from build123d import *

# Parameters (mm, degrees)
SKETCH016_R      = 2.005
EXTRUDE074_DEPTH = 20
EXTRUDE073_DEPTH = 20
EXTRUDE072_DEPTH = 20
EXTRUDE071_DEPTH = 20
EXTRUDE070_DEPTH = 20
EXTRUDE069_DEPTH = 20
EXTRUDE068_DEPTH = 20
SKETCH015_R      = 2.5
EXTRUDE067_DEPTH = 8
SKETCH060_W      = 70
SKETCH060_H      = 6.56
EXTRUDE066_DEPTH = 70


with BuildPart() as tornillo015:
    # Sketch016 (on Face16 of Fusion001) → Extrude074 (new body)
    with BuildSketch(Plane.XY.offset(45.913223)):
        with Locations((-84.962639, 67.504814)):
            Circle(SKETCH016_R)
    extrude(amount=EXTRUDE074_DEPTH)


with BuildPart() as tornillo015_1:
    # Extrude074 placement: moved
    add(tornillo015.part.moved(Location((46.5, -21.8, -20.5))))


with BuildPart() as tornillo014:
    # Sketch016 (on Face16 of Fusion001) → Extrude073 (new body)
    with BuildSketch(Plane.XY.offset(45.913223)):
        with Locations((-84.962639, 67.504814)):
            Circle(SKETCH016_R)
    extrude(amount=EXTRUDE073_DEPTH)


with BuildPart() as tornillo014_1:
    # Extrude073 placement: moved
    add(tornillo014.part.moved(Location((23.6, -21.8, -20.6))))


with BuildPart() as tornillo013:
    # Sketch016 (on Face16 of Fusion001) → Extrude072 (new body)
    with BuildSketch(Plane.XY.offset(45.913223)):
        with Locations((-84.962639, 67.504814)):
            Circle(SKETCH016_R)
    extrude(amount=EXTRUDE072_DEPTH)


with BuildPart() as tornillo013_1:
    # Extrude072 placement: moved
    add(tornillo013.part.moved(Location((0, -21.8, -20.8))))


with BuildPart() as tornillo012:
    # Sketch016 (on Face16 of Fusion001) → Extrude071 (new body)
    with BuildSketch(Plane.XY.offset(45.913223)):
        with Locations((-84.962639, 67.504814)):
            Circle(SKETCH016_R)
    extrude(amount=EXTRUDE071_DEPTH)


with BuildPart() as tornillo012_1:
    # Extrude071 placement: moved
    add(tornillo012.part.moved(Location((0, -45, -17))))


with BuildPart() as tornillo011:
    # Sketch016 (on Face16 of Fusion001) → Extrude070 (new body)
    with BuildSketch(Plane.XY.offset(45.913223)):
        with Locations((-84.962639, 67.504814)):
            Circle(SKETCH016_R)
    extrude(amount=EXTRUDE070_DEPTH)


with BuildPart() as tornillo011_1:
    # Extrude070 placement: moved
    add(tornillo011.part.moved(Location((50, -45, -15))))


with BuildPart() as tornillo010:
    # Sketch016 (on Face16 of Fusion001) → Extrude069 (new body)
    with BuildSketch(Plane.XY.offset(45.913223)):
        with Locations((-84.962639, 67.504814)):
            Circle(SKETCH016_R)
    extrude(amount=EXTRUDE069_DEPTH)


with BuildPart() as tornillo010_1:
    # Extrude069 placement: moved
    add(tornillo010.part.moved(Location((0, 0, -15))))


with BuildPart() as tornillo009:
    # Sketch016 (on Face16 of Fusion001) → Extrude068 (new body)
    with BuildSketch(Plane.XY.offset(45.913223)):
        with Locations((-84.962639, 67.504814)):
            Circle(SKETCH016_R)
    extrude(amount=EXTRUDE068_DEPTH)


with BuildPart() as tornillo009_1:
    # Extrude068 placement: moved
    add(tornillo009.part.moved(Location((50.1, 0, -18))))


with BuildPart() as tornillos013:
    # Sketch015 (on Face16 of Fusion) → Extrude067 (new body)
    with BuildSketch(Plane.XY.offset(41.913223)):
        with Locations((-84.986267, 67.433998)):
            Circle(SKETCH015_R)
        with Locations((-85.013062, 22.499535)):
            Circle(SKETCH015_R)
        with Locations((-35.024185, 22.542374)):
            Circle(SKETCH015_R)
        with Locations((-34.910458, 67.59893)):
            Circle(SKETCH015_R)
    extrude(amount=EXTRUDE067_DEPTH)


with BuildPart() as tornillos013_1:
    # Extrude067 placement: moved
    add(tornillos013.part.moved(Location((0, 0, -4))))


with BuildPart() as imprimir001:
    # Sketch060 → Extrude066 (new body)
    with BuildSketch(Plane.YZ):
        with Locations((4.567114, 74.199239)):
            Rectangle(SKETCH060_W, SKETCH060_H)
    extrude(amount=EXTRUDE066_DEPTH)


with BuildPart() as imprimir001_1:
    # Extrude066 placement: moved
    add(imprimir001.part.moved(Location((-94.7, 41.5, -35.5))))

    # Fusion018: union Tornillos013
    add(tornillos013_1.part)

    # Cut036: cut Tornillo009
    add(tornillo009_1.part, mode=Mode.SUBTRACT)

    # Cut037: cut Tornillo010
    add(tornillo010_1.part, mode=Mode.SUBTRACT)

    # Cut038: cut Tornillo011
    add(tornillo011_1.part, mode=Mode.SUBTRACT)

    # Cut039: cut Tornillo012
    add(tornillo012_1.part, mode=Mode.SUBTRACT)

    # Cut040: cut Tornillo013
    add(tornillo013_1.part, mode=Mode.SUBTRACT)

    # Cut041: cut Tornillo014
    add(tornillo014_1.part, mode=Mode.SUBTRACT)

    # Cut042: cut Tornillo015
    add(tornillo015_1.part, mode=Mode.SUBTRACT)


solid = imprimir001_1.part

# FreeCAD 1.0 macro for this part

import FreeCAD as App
import Part
import Sketcher
from FreeCAD import Vector
Q = App.Units.Quantity

doc = App.newDocument("Part")
params = doc.addObject("Spreadsheet::Sheet", "Params")
for row, (alias, value) in enumerate([
    ("sketch1_diameter", "4.01 mm"),
    ("pad1_length", "20 mm"),
    ("sketch2_diameter", "4.01 mm"),
    ("pad2_length", "20 mm"),
    ("sketch3_diameter", "4.01 mm"),
    ("pad3_length", "20 mm"),
    ("sketch4_diameter", "4.01 mm"),
    ("pad4_length", "20 mm"),
    ("sketch5_diameter", "4.01 mm"),
    ("pad5_length", "20 mm"),
    ("sketch6_diameter", "4.01 mm"),
    ("pad6_length", "20 mm"),
    ("sketch7_diameter", "4.01 mm"),
    ("pad7_length", "20 mm"),
    ("sketch8_diameter", "5 mm"),
    ("pad8_length", "8 mm"),
    ("sketch9_width", "70 mm"),
    ("sketch9_height", "6.56 mm"),
    ("pad9_length", "70 mm"),
], start=1):
    params.set(f"A{row}", alias)
    params.set(f"B{row}", "=" + value)
    params.setAlias(f"B{row}", alias)

body = doc.addObject("PartDesign::Body", "Body")

# Sketch on XY plane
sketch1 = body.newObject("Sketcher::SketchObject", "Sketch")
sketch1.AttachmentSupport = (doc.getObject("XY_Plane"), [""])
sketch1.MapMode = "FlatFace"
sketch1.AttachmentOffset = App.Placement(Vector(0, 0, 45.913223), App.Rotation())
sketch1.addGeometry(Part.Circle(Vector(-85, 67.5, 0), Vector(0, 0, 1), 2), False)
sketch1.addConstraint([
    Sketcher.Constraint("Diameter", 0, Q("4.01 mm")),
    Sketcher.Constraint("DistanceX", 0, 3, -1, 1, Q("84.962639 mm")),
    Sketcher.Constraint("DistanceY", -1, 1, 0, 3, Q("67.504814 mm")),
])
sketch1.setExpression("Constraints[0]", "Params.sketch1_diameter")
pad1 = body.newObject("PartDesign::Pad", "Pad")
pad1.Profile = sketch1
pad1.setExpression("Length", "Params.pad1_length")
body2 = doc.addObject("PartDesign::Body", "Body001")
doc.recompute()

body.Placement = App.Placement(Vector(46.5, -21.8, -20.5), App.Rotation(Vector(0, 0, 1), 0))
boolean = body2.newObject("PartDesign::Boolean", "Boolean")
boolean.Type = "Fuse"
boolean.addObjects([body])
body3 = doc.addObject("PartDesign::Body", "Body002")

# Sketch on XY plane
sketch2 = body3.newObject("Sketcher::SketchObject", "Sketch001")
sketch2.AttachmentSupport = (doc.getObject("XY_Plane002"), [""])
sketch2.MapMode = "FlatFace"
sketch2.AttachmentOffset = App.Placement(Vector(0, 0, 45.913223), App.Rotation())
sketch2.addGeometry(Part.Circle(Vector(-85, 67.5, 0), Vector(0, 0, 1), 2), False)
sketch2.addConstraint([
    Sketcher.Constraint("Diameter", 0, Q("4.01 mm")),
    Sketcher.Constraint("DistanceX", 0, 3, -1, 1, Q("84.962639 mm")),
    Sketcher.Constraint("DistanceY", -1, 1, 0, 3, Q("67.504814 mm")),
])
sketch2.setExpression("Constraints[0]", "Params.sketch2_diameter")
pad2 = body3.newObject("PartDesign::Pad", "Pad001")
pad2.Profile = sketch2
pad2.setExpression("Length", "Params.pad2_length")
body4 = doc.addObject("PartDesign::Body", "Body003")
doc.recompute()

body3.Placement = App.Placement(Vector(23.6, -21.8, -20.6), App.Rotation(Vector(0, 0, 1), 0))
boolean2 = body4.newObject("PartDesign::Boolean", "Boolean001")
boolean2.Type = "Fuse"
boolean2.addObjects([body3])
body5 = doc.addObject("PartDesign::Body", "Body004")

# Sketch on XY plane
sketch3 = body5.newObject("Sketcher::SketchObject", "Sketch002")
sketch3.AttachmentSupport = (doc.getObject("XY_Plane004"), [""])
sketch3.MapMode = "FlatFace"
sketch3.AttachmentOffset = App.Placement(Vector(0, 0, 45.913223), App.Rotation())
sketch3.addGeometry(Part.Circle(Vector(-85, 67.5, 0), Vector(0, 0, 1), 2), False)
sketch3.addConstraint([
    Sketcher.Constraint("Diameter", 0, Q("4.01 mm")),
    Sketcher.Constraint("DistanceX", 0, 3, -1, 1, Q("84.962639 mm")),
    Sketcher.Constraint("DistanceY", -1, 1, 0, 3, Q("67.504814 mm")),
])
sketch3.setExpression("Constraints[0]", "Params.sketch3_diameter")
pad3 = body5.newObject("PartDesign::Pad", "Pad002")
pad3.Profile = sketch3
pad3.setExpression("Length", "Params.pad3_length")
body6 = doc.addObject("PartDesign::Body", "Body005")
doc.recompute()

body5.Placement = App.Placement(Vector(0, -21.8, -20.8), App.Rotation(Vector(0, 0, 1), 0))
boolean3 = body6.newObject("PartDesign::Boolean", "Boolean002")
boolean3.Type = "Fuse"
boolean3.addObjects([body5])
body7 = doc.addObject("PartDesign::Body", "Body006")

# Sketch on XY plane
sketch4 = body7.newObject("Sketcher::SketchObject", "Sketch003")
sketch4.AttachmentSupport = (doc.getObject("XY_Plane006"), [""])
sketch4.MapMode = "FlatFace"
sketch4.AttachmentOffset = App.Placement(Vector(0, 0, 45.913223), App.Rotation())
sketch4.addGeometry(Part.Circle(Vector(-85, 67.5, 0), Vector(0, 0, 1), 2), False)
sketch4.addConstraint([
    Sketcher.Constraint("Diameter", 0, Q("4.01 mm")),
    Sketcher.Constraint("DistanceX", 0, 3, -1, 1, Q("84.962639 mm")),
    Sketcher.Constraint("DistanceY", -1, 1, 0, 3, Q("67.504814 mm")),
])
sketch4.setExpression("Constraints[0]", "Params.sketch4_diameter")
pad4 = body7.newObject("PartDesign::Pad", "Pad003")
pad4.Profile = sketch4
pad4.setExpression("Length", "Params.pad4_length")
body8 = doc.addObject("PartDesign::Body", "Body007")
doc.recompute()

body7.Placement = App.Placement(Vector(0, -45, -17), App.Rotation(Vector(0, 0, 1), 0))
boolean4 = body8.newObject("PartDesign::Boolean", "Boolean003")
boolean4.Type = "Fuse"
boolean4.addObjects([body7])
body9 = doc.addObject("PartDesign::Body", "Body008")

# Sketch on XY plane
sketch5 = body9.newObject("Sketcher::SketchObject", "Sketch004")
sketch5.AttachmentSupport = (doc.getObject("XY_Plane008"), [""])
sketch5.MapMode = "FlatFace"
sketch5.AttachmentOffset = App.Placement(Vector(0, 0, 45.913223), App.Rotation())
sketch5.addGeometry(Part.Circle(Vector(-85, 67.5, 0), Vector(0, 0, 1), 2), False)
sketch5.addConstraint([
    Sketcher.Constraint("Diameter", 0, Q("4.01 mm")),
    Sketcher.Constraint("DistanceX", 0, 3, -1, 1, Q("84.962639 mm")),
    Sketcher.Constraint("DistanceY", -1, 1, 0, 3, Q("67.504814 mm")),
])
sketch5.setExpression("Constraints[0]", "Params.sketch5_diameter")
pad5 = body9.newObject("PartDesign::Pad", "Pad004")
pad5.Profile = sketch5
pad5.setExpression("Length", "Params.pad5_length")
body10 = doc.addObject("PartDesign::Body", "Body009")
doc.recompute()

body9.Placement = App.Placement(Vector(50, -45, -15), App.Rotation(Vector(0, 0, 1), 0))
boolean5 = body10.newObject("PartDesign::Boolean", "Boolean004")
boolean5.Type = "Fuse"
boolean5.addObjects([body9])
body11 = doc.addObject("PartDesign::Body", "Body010")

# Sketch on XY plane
sketch6 = body11.newObject("Sketcher::SketchObject", "Sketch005")
sketch6.AttachmentSupport = (doc.getObject("XY_Plane010"), [""])
sketch6.MapMode = "FlatFace"
sketch6.AttachmentOffset = App.Placement(Vector(0, 0, 45.913223), App.Rotation())
sketch6.addGeometry(Part.Circle(Vector(-85, 67.5, 0), Vector(0, 0, 1), 2), False)
sketch6.addConstraint([
    Sketcher.Constraint("Diameter", 0, Q("4.01 mm")),
    Sketcher.Constraint("DistanceX", 0, 3, -1, 1, Q("84.962639 mm")),
    Sketcher.Constraint("DistanceY", -1, 1, 0, 3, Q("67.504814 mm")),
])
sketch6.setExpression("Constraints[0]", "Params.sketch6_diameter")
pad6 = body11.newObject("PartDesign::Pad", "Pad005")
pad6.Profile = sketch6
pad6.setExpression("Length", "Params.pad6_length")
body12 = doc.addObject("PartDesign::Body", "Body011")
doc.recompute()

body11.Placement = App.Placement(Vector(0, 0, -15), App.Rotation(Vector(0, 0, 1), 0))
boolean6 = body12.newObject("PartDesign::Boolean", "Boolean005")
boolean6.Type = "Fuse"
boolean6.addObjects([body11])
body13 = doc.addObject("PartDesign::Body", "Body012")

# Sketch on XY plane
sketch7 = body13.newObject("Sketcher::SketchObject", "Sketch006")
sketch7.AttachmentSupport = (doc.getObject("XY_Plane012"), [""])
sketch7.MapMode = "FlatFace"
sketch7.AttachmentOffset = App.Placement(Vector(0, 0, 45.913223), App.Rotation())
sketch7.addGeometry(Part.Circle(Vector(-85, 67.5, 0), Vector(0, 0, 1), 2), False)
sketch7.addConstraint([
    Sketcher.Constraint("Diameter", 0, Q("4.01 mm")),
    Sketcher.Constraint("DistanceX", 0, 3, -1, 1, Q("84.962639 mm")),
    Sketcher.Constraint("DistanceY", -1, 1, 0, 3, Q("67.504814 mm")),
])
sketch7.setExpression("Constraints[0]", "Params.sketch7_diameter")
pad7 = body13.newObject("PartDesign::Pad", "Pad006")
pad7.Profile = sketch7
pad7.setExpression("Length", "Params.pad7_length")
body14 = doc.addObject("PartDesign::Body", "Body013")
doc.recompute()

body13.Placement = App.Placement(Vector(50.1, 0, -18), App.Rotation(Vector(0, 0, 1), 0))
boolean7 = body14.newObject("PartDesign::Boolean", "Boolean006")
boolean7.Type = "Fuse"
boolean7.addObjects([body13])
body15 = doc.addObject("PartDesign::Body", "Body014")
body15.AllowCompound = True

# Sketch on XY plane
sketch8 = body15.newObject("Sketcher::SketchObject", "Sketch007")
sketch8.AttachmentSupport = (doc.getObject("XY_Plane014"), [""])
sketch8.MapMode = "FlatFace"
sketch8.AttachmentOffset = App.Placement(Vector(0, 0, 41.913223), App.Rotation())
sketch8.addGeometry([
    Part.Circle(Vector(-85, 67.4, 0), Vector(0, 0, 1), 2.5),
    Part.Circle(Vector(-85, 22.5, 0), Vector(0, 0, 1), 2.5),
    Part.Circle(Vector(-35, 22.5, 0), Vector(0, 0, 1), 2.5),
    Part.Circle(Vector(-34.9, 67.6, 0), Vector(0, 0, 1), 2.5),
], False)
sketch8.addConstraint([
    Sketcher.Constraint("Equal", 0, 1),
    Sketcher.Constraint("Equal", 1, 2),
    Sketcher.Constraint("Equal", 2, 3),
    Sketcher.Constraint("Diameter", 0, Q("5 mm")),
    Sketcher.Constraint("DistanceY", -1, 1, 0, 3, Q("67.433998 mm")),
    Sketcher.Constraint("DistanceY", -1, 1, 3, 3, Q("67.59893 mm")),
    Sketcher.Constraint("DistanceY", 1, 3, 2, 3, Q("0.042839 mm")),
    Sketcher.Constraint("DistanceX", 0, 3, 2, 3, Q("49.962082 mm")),
    Sketcher.Constraint("DistanceX", 0, 3, 3, 3, Q("50.075809 mm")),
    Sketcher.Constraint("DistanceX", 0, 3, -1, 1, Q("84.986267 mm")),
    Sketcher.Constraint("DistanceX", 1, 3, -1, 1, Q("85.013062 mm")),
    Sketcher.Constraint("DistanceY", -1, 1, 1, 3, Q("22.499535 mm")),
])
sketch8.setExpression("Constraints[3]", "Params.sketch8_diameter")
pad8 = body15.newObject("PartDesign::Pad", "Pad007")
pad8.Profile = sketch8
pad8.setExpression("Length", "Params.pad8_length")
body16 = doc.addObject("PartDesign::Body", "Body015")
body16.AllowCompound = True
doc.recompute()

body15.Placement = App.Placement(Vector(0, 0, -4), App.Rotation(Vector(0, 0, 1), 0))
boolean8 = body16.newObject("PartDesign::Boolean", "Boolean007")
boolean8.Type = "Fuse"
boolean8.addObjects([body15])
body17 = doc.addObject("PartDesign::Body", "Body016")

# Sketch on YZ plane
sketch9 = body17.newObject("Sketcher::SketchObject", "Sketch008")
sketch9.AttachmentSupport = (doc.getObject("YZ_Plane016"), [""])
sketch9.MapMode = "FlatFace"
sketch9.addGeometry([
    Part.LineSegment(Vector(-30, 77, 0), Vector(-30, 71, 0)),
    Part.LineSegment(Vector(-30, 71, 0), Vector(40, 71, 0)),
    Part.LineSegment(Vector(40, 71, 0), Vector(40, 77, 0)),
    Part.LineSegment(Vector(40, 77, 0), Vector(-30, 77, 0)),
], False)
sketch9.addConstraint([
    Sketcher.Constraint("Coincident", 0, 2, 1, 1),
    Sketcher.Constraint("Coincident", 1, 2, 2, 1),
    Sketcher.Constraint("Coincident", 2, 2, 3, 1),
    Sketcher.Constraint("Coincident", 3, 2, 0, 1),
    Sketcher.Constraint("Vertical", 0),
    Sketcher.Constraint("Horizontal", 1),
    Sketcher.Constraint("Vertical", 2),
    Sketcher.Constraint("Horizontal", 3),
    Sketcher.Constraint("DistanceX", 1, 1, 1, 2, Q("70 mm")),
    Sketcher.Constraint("DistanceY", 0, 2, 0, 1, Q("6.56 mm")),
    Sketcher.Constraint("DistanceY", -1, 1, 0, 2, Q("70.919239 mm")),
    Sketcher.Constraint("DistanceX", 0, 2, -1, 1, Q("30.432886 mm")),
])
sketch9.setExpression("Constraints[8]", "Params.sketch9_width")
sketch9.setExpression("Constraints[9]", "Params.sketch9_height")
pad9 = body17.newObject("PartDesign::Pad", "Pad008")
pad9.Profile = sketch9
pad9.setExpression("Length", "Params.pad9_length")
body18 = doc.addObject("PartDesign::Body", "Body017")
doc.recompute()

body17.Placement = App.Placement(Vector(-94.7, 41.5, -35.5), App.Rotation(Vector(0, 0, 1), 0))
boolean9 = body18.newObject("PartDesign::Boolean", "Boolean008")
boolean9.Type = "Fuse"
boolean9.addObjects([body17])
doc.recompute()

boolean10 = body18.newObject("PartDesign::Boolean", "Boolean009")
boolean10.Type = "Fuse"
boolean10.addObjects([body16])
doc.recompute()

boolean11 = body18.newObject("PartDesign::Boolean", "Boolean010")
boolean11.Type = "Cut"
boolean11.addObjects([body14])
doc.recompute()

boolean12 = body18.newObject("PartDesign::Boolean", "Boolean011")
boolean12.Type = "Cut"
boolean12.addObjects([body12])
doc.recompute()

boolean13 = body18.newObject("PartDesign::Boolean", "Boolean012")
boolean13.Type = "Cut"
boolean13.addObjects([body10])
doc.recompute()

boolean14 = body18.newObject("PartDesign::Boolean", "Boolean013")
boolean14.Type = "Cut"
boolean14.addObjects([body8])
doc.recompute()

boolean15 = body18.newObject("PartDesign::Boolean", "Boolean014")
boolean15.Type = "Cut"
boolean15.addObjects([body6])
doc.recompute()

boolean16 = body18.newObject("PartDesign::Boolean", "Boolean015")
boolean16.Type = "Cut"
boolean16.addObjects([body4])
doc.recompute()

boolean17 = body18.newObject("PartDesign::Boolean", "Boolean016")
boolean17.Type = "Cut"
boolean17.addObjects([body2])

doc.recompute()
